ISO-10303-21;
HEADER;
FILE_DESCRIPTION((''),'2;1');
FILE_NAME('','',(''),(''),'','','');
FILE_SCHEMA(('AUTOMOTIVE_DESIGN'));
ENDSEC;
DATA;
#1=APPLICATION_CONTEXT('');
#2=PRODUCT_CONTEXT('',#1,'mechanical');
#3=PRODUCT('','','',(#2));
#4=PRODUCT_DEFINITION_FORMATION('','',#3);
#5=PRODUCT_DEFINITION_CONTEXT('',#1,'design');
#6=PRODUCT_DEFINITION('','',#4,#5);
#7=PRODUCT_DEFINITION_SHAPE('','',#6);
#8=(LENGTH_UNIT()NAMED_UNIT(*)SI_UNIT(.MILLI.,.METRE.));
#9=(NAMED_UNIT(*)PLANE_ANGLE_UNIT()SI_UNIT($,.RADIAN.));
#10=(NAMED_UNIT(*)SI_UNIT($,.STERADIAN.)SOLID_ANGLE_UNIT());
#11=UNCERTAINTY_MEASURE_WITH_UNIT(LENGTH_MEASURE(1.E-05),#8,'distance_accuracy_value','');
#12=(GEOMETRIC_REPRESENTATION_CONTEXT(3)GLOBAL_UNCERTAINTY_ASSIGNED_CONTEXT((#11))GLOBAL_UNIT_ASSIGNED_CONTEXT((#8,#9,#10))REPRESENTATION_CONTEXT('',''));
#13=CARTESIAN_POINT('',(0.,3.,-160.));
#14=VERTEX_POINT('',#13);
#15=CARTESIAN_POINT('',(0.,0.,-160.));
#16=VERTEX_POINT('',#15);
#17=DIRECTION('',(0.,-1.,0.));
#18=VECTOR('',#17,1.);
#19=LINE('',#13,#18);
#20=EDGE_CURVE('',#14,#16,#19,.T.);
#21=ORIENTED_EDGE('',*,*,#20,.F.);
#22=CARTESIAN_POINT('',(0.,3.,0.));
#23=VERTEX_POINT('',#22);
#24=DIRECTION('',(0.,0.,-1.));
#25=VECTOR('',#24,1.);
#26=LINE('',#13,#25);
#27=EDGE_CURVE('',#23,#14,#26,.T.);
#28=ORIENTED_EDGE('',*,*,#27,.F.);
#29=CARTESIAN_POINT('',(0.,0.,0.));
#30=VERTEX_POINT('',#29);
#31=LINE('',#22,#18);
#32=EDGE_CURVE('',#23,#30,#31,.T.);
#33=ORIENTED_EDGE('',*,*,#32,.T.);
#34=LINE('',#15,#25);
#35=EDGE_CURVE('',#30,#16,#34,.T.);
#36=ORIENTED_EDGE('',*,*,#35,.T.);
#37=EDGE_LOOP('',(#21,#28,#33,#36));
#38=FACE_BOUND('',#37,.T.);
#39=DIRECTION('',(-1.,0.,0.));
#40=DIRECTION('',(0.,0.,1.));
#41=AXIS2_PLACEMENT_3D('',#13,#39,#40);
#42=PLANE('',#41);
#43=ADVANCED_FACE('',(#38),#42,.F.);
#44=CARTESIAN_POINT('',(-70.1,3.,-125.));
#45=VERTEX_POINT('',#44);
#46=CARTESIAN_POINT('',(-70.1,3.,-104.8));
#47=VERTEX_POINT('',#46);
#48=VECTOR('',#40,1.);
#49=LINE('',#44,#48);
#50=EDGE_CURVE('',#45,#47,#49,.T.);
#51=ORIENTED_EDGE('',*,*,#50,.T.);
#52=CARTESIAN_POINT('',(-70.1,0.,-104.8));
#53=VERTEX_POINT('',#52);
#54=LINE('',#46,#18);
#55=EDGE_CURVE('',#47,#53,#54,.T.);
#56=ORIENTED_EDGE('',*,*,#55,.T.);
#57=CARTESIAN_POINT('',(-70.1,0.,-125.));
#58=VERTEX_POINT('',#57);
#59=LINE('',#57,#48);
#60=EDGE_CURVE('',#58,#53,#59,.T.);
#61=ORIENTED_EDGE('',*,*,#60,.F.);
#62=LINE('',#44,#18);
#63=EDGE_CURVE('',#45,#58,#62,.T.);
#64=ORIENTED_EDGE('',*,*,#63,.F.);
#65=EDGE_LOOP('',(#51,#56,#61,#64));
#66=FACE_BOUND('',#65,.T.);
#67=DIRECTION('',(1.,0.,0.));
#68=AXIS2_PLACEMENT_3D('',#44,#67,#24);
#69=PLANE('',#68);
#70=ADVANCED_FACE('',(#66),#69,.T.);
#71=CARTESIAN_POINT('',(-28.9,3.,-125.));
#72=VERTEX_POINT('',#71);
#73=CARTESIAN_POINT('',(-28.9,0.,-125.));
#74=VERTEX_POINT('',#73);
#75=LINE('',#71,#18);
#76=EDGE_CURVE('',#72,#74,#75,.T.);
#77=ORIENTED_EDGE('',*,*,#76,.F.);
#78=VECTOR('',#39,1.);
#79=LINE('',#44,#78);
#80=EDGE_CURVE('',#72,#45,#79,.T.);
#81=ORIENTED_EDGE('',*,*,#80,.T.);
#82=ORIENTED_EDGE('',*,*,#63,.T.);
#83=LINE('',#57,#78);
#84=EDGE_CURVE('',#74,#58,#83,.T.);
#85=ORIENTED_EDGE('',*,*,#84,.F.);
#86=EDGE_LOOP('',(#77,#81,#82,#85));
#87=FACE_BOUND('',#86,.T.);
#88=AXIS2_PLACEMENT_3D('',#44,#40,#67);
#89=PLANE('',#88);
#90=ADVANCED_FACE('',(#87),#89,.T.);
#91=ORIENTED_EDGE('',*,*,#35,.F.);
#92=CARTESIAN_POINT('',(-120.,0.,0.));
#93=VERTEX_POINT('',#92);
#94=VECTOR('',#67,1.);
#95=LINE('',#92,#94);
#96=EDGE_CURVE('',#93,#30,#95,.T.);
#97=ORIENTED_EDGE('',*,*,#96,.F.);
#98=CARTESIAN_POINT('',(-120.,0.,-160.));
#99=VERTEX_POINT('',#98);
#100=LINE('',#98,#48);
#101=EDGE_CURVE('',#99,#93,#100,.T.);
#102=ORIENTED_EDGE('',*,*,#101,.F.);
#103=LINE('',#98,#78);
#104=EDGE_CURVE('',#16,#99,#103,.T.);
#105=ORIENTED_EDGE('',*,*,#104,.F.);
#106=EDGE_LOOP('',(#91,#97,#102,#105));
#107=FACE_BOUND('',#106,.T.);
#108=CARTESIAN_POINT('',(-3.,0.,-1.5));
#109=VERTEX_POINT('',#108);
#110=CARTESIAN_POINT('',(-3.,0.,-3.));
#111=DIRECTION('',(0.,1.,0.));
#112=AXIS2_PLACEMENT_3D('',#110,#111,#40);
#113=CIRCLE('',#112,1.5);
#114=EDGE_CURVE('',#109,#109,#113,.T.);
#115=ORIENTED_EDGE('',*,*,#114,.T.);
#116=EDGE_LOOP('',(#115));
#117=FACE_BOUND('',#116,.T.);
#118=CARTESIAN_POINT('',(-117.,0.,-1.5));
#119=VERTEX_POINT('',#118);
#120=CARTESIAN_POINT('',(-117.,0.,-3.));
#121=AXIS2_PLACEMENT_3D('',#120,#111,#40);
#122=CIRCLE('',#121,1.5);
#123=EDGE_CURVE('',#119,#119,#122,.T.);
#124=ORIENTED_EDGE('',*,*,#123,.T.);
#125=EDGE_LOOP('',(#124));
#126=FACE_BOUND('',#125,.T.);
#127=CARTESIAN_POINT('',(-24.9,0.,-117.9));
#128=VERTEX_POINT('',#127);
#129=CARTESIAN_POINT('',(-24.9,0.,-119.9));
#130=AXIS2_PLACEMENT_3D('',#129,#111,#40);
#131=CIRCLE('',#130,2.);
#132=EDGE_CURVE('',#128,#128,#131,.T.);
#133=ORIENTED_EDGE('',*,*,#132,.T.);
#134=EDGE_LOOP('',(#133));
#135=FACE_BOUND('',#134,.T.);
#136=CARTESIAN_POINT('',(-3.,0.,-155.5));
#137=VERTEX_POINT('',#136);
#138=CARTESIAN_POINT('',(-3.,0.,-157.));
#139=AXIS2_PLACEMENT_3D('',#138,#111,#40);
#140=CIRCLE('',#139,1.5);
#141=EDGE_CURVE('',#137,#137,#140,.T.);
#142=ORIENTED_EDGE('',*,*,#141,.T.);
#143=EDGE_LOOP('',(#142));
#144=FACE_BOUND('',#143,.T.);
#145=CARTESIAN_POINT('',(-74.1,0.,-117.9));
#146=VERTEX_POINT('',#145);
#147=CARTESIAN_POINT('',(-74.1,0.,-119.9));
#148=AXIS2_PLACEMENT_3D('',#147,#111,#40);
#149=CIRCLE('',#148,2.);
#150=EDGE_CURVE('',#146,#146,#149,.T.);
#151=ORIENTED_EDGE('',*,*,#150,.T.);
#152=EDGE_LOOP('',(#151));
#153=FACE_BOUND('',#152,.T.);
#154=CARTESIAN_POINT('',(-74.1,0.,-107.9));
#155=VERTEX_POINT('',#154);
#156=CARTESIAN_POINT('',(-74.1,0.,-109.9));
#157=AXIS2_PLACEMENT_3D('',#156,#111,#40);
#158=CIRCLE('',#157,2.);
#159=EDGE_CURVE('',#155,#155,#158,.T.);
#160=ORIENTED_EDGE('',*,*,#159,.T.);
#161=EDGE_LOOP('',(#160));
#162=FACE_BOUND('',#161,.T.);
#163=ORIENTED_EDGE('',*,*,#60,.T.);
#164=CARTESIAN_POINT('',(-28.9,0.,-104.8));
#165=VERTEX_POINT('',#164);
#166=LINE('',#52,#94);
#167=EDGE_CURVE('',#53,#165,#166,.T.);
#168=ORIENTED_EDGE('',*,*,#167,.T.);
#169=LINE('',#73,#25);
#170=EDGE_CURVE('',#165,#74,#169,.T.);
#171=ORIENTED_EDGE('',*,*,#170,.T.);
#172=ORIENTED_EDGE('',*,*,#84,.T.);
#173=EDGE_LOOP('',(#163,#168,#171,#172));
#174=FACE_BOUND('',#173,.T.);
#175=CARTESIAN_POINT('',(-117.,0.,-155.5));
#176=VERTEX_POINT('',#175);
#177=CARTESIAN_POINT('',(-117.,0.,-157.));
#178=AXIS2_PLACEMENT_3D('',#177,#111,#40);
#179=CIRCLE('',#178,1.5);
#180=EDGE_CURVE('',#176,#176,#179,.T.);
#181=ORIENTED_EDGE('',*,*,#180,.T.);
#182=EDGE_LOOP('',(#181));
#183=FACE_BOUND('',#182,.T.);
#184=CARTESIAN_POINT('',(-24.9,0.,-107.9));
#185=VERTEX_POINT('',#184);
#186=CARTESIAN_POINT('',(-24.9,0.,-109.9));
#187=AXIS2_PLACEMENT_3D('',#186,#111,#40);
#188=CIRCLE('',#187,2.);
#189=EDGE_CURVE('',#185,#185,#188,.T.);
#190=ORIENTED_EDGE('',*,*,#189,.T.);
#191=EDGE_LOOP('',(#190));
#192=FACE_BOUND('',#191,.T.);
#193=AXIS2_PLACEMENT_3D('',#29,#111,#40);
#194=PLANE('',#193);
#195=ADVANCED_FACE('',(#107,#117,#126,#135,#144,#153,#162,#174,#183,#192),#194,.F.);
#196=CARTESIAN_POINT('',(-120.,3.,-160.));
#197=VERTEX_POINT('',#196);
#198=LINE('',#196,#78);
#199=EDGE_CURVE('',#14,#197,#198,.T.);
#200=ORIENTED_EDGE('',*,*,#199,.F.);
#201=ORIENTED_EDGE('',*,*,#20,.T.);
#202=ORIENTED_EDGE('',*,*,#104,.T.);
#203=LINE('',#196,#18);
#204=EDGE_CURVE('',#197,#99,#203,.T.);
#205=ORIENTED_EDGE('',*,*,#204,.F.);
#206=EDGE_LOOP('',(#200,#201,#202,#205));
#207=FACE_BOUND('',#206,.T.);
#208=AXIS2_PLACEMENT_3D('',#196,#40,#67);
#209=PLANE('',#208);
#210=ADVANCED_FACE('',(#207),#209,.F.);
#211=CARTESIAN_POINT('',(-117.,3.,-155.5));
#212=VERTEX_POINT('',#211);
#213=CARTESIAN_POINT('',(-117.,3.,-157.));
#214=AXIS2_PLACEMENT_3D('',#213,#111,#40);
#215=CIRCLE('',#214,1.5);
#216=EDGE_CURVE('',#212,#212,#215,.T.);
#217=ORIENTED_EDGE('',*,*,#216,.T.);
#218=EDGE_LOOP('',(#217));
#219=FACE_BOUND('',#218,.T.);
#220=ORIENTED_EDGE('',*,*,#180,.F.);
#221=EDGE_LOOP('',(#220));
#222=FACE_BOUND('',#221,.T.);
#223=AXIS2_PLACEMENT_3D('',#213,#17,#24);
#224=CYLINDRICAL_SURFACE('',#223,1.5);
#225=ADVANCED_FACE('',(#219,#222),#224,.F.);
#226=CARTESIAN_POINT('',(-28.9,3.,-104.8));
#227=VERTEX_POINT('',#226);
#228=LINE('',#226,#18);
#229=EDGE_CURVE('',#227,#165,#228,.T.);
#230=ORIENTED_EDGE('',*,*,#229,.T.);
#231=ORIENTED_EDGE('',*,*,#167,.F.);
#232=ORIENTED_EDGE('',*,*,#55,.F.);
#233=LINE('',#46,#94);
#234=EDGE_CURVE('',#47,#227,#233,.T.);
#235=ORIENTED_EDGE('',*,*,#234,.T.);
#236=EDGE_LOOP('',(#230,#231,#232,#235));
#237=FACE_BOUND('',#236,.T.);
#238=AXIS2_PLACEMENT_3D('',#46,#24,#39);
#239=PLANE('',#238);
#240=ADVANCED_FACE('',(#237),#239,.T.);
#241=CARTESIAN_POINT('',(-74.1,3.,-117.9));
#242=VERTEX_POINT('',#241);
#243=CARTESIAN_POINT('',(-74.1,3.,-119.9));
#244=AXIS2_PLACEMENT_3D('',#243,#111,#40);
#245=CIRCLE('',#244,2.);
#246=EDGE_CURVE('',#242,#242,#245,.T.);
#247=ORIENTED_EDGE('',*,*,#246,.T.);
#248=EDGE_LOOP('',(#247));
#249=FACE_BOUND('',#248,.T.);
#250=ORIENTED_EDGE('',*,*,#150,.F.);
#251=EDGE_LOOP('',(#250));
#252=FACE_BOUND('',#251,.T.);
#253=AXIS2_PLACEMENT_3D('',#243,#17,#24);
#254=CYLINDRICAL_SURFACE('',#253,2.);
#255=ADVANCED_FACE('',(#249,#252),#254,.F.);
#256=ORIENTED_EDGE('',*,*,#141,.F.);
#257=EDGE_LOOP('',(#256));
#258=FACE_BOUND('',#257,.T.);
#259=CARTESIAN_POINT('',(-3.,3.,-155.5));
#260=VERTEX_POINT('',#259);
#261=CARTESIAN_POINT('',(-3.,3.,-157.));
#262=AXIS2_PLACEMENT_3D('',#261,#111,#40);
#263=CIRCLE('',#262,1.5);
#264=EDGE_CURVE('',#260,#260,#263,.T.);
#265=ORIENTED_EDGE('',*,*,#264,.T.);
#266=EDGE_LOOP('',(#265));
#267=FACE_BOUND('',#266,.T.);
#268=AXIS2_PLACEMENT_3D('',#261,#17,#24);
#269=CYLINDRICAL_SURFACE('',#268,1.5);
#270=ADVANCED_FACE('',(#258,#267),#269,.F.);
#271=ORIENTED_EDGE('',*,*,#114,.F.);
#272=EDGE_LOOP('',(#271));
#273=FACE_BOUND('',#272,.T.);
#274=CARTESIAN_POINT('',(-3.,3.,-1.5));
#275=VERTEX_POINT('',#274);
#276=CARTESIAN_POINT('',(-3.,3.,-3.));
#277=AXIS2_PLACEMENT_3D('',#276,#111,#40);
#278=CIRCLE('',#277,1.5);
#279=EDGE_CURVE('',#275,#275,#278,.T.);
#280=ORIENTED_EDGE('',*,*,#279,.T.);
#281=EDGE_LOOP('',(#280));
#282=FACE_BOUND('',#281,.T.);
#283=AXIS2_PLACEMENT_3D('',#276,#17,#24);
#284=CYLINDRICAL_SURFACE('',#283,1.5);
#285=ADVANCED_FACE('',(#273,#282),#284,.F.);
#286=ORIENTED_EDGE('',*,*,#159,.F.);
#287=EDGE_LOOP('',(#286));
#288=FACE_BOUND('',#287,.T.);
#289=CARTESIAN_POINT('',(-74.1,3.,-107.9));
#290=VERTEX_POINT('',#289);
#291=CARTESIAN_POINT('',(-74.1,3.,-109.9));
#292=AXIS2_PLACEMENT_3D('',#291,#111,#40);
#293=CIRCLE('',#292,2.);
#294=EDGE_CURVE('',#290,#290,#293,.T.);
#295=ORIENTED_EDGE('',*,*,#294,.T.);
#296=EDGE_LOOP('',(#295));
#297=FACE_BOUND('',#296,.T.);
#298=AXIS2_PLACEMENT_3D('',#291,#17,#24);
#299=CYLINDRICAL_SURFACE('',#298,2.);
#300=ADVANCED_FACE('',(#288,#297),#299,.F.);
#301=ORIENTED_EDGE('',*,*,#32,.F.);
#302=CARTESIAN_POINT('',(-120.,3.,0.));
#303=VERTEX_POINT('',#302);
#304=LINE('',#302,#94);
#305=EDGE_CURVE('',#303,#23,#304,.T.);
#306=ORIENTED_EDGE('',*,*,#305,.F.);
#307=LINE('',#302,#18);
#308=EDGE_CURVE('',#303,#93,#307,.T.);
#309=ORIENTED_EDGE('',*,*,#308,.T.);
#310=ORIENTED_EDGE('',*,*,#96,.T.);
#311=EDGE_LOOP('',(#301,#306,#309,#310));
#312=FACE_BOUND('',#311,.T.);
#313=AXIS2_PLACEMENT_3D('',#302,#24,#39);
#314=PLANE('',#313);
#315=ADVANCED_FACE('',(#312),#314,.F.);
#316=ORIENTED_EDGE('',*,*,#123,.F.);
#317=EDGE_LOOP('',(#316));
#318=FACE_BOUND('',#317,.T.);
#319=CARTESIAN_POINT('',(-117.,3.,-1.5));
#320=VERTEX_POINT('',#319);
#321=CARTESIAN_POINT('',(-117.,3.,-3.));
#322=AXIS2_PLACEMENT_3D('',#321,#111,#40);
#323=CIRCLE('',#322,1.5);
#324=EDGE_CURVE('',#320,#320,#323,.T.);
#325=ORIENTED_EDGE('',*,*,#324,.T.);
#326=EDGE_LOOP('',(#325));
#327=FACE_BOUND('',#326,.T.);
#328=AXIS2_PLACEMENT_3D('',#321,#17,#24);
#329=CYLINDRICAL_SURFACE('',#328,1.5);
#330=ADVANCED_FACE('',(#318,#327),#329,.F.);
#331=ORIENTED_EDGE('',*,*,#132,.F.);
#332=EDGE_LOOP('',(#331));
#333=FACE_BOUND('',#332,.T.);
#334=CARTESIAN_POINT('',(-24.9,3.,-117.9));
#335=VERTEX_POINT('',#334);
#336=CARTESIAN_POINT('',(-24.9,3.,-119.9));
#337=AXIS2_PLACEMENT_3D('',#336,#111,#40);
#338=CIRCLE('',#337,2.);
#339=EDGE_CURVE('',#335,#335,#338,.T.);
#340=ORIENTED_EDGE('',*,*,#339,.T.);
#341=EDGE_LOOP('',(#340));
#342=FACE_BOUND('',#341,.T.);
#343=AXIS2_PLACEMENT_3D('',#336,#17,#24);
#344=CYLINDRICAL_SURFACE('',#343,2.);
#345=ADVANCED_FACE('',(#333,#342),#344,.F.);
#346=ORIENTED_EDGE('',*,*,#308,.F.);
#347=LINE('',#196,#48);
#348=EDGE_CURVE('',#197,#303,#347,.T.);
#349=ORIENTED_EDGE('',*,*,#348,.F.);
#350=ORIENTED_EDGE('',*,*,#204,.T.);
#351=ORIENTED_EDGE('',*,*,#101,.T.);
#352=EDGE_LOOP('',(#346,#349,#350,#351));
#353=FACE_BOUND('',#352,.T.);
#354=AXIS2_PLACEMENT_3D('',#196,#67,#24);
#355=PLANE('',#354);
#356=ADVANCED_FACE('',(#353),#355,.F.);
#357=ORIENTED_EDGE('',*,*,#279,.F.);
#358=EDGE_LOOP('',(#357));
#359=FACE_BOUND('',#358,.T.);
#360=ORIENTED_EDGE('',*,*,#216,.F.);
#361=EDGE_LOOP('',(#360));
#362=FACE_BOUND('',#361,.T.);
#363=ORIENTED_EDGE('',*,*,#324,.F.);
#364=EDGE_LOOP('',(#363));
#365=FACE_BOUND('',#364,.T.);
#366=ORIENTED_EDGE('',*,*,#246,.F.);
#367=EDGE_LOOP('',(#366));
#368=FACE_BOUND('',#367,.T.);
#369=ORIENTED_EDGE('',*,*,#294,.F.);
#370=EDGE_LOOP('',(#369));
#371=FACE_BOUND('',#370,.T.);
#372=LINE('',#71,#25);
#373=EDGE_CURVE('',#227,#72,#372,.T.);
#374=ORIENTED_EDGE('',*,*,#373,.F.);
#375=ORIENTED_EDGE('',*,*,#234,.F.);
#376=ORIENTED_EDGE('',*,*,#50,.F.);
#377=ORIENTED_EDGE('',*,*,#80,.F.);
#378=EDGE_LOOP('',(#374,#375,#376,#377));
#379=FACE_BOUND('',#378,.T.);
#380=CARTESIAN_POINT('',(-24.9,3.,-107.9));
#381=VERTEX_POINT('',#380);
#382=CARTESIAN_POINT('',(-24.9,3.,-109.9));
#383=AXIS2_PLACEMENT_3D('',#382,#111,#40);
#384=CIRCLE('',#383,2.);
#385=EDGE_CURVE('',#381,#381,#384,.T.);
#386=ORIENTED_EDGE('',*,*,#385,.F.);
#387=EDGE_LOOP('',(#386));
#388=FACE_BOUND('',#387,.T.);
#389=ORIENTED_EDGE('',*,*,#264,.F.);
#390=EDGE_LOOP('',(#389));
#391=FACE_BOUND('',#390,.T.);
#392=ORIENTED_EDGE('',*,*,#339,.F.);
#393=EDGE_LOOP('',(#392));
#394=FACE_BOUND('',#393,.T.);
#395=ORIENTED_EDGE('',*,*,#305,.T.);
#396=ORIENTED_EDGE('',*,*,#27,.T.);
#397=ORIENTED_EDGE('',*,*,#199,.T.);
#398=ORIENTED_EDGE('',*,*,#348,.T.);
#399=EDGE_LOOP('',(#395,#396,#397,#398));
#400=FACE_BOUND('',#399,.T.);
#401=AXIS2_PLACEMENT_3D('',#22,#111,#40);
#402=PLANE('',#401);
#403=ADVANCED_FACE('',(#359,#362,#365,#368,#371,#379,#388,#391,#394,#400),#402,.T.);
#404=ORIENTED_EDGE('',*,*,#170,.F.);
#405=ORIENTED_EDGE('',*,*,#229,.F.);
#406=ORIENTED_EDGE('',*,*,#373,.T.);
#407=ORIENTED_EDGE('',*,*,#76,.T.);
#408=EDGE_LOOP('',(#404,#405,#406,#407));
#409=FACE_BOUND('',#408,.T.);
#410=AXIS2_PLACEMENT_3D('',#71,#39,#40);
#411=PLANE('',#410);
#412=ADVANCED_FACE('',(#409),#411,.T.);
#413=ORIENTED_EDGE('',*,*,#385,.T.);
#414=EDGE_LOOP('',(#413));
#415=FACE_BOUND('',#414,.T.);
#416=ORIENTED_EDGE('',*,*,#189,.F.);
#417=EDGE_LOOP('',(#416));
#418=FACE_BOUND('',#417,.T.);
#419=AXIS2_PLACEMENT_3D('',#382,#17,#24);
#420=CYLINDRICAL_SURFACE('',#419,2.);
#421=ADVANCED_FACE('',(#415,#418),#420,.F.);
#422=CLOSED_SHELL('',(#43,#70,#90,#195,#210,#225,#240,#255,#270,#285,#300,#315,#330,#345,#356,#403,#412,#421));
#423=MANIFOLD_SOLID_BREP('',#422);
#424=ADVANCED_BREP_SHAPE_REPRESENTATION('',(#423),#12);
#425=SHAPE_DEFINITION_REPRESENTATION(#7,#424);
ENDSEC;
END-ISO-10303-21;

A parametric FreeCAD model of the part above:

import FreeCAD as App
import Part
import Sketcher
from FreeCAD import Vector
Q = App.Units.Quantity


def add_polygon(sketch, points):
    """Adds a closed chain of lines whose ends are joined by coincident constraints."""
    first, n = sketch.GeometryCount, len(points)
    for a, b in zip(points, points[1:] + points[:1]):
        sketch.addGeometry(Part.LineSegment(App.Vector(*a, 0), App.Vector(*b, 0)), False)
    for i in range(n):
        sketch.addConstraint(Sketcher.Constraint("Coincident", first + i, 2, first + (i + 1) % n, 1))

doc = App.newDocument("Part")
body = doc.addObject("PartDesign::Body", "Body")

sketch1 = doc.addObject("Sketcher::SketchObject", "Sketch")
body.addObject(sketch1)
sketch1.AttachmentSupport = (doc.XZ_Plane, [""])
sketch1.MapMode = "FlatFace"
add_polygon(sketch1, [(-120, -160), (-120, 0), (0, 0), (0, -160)])
sketch1.addGeometry(Part.Circle(Vector(-117, -3, 0), Vector(0, 0, 1), 1.5), False)
sketch1.addGeometry(Part.Circle(Vector(-3, -3, 0), Vector(0, 0, 1), 1.5), False)
sketch1.addGeometry(Part.Circle(Vector(-74.1, -109.9, 0), Vector(0, 0, 1), 2), False)
sketch1.addGeometry(Part.Circle(Vector(-117, -157, 0), Vector(0, 0, 1), 1.5), False)
sketch1.addGeometry(Part.Circle(Vector(-74.1, -119.9, 0), Vector(0, 0, 1), 2), False)
add_polygon(sketch1, [(-28.9, -104.8), (-70.1, -104.8), (-70.1, -125), (-28.9, -125)])
sketch1.addGeometry(Part.Circle(Vector(-24.9, -109.9, 0), Vector(0, 0, 1), 2), False)
sketch1.addGeometry(Part.Circle(Vector(-24.9, -119.9, 0), Vector(0, 0, 1), 2), False)
sketch1.addGeometry(Part.Circle(Vector(-3, -157, 0), Vector(0, 0, 1), 1.5), False)
sketch1.addConstraint([
    Sketcher.Constraint("Vertical", 0),
    Sketcher.Constraint("Horizontal", 1),
    Sketcher.Constraint("Vertical", 2),
    Sketcher.Constraint("Horizontal", 3),
    Sketcher.Constraint("Horizontal", 9),
    Sketcher.Constraint("Vertical", 10),
    Sketcher.Constraint("Horizontal", 11),
    Sketcher.Constraint("Vertical", 12),
    Sketcher.Constraint("Coincident", 1, 2, -1, 1),
    Sketcher.Constraint("Equal", 4, 5),
    Sketcher.Constraint("Equal", 5, 7),
    Sketcher.Constraint("Equal", 6, 8),
    Sketcher.Constraint("Equal", 8, 13),
    Sketcher.Constraint("Equal", 13, 14),
    Sketcher.Constraint("Equal", 7, 15),
    Sketcher.Constraint("Horizontal", 4, 3, 5, 3),
    Sketcher.Constraint("Horizontal", 6, 3, 13, 3),
    Sketcher.Constraint("Horizontal", 8, 3, 14, 3),
    Sketcher.Constraint("Horizontal", 7, 3, 15, 3),
    Sketcher.Constraint("Vertical", 4, 3, 7, 3),
    Sketcher.Constraint("Vertical", 6, 3, 8, 3),
    Sketcher.Constraint("Vertical", 13, 3, 14, 3),
    Sketcher.Constraint("Vertical", 5, 3, 15, 3),
    Sketcher.Constraint("Diameter", 4, Q("3 mm")),
    Sketcher.Constraint("Diameter", 6, Q("4 mm")),
    Sketcher.Constraint("DistanceX", 1, 1, 1, 2, Q("120 mm")),
    Sketcher.Constraint("DistanceY", 0, 1, 0, 2, Q("160 mm")),
    Sketcher.Constraint("DistanceX", 9, 2, 9, 1, Q("41.2 mm")),
    Sketcher.Constraint("DistanceY", 10, 2, 10, 1, Q("20.2 mm")),
    Sketcher.Constraint("DistanceX", 4, 3, -1, 1, Q("117 mm")),
    Sketcher.Constraint("DistanceY", 4, 3, -1, 1, Q("3 mm")),
    Sketcher.Constraint("DistanceX", 5, 3, -1, 1, Q("3 mm")),
    Sketcher.Constraint("DistanceY", 7, 3, -1, 1, Q("157 mm")),
    Sketcher.Constraint("DistanceY", 10, 2, -1, 1, Q("125 mm")),
    Sketcher.Constraint("DistanceY", 8, 3, 6, 3, Q("10 mm")),
    Sketcher.Constraint("DistanceX", 6, 3, 9, 2, Q("4 mm")),
    Sketcher.Constraint("DistanceX", 11, 2, 14, 3, Q("4 mm")),
    Sketcher.Constraint("DistanceX", 6, 3, -1, 1, Q("74.1 mm")),
    Sketcher.Constraint("DistanceY", 6, 3, -1, 1, Q("109.9 mm")),
])
pad1 = doc.addObject("PartDesign::Pad", "Pad")
body.addObject(pad1)
pad1.Profile = sketch1
pad1.Length = 3
pad1.Reversed = True

doc.recompute()
